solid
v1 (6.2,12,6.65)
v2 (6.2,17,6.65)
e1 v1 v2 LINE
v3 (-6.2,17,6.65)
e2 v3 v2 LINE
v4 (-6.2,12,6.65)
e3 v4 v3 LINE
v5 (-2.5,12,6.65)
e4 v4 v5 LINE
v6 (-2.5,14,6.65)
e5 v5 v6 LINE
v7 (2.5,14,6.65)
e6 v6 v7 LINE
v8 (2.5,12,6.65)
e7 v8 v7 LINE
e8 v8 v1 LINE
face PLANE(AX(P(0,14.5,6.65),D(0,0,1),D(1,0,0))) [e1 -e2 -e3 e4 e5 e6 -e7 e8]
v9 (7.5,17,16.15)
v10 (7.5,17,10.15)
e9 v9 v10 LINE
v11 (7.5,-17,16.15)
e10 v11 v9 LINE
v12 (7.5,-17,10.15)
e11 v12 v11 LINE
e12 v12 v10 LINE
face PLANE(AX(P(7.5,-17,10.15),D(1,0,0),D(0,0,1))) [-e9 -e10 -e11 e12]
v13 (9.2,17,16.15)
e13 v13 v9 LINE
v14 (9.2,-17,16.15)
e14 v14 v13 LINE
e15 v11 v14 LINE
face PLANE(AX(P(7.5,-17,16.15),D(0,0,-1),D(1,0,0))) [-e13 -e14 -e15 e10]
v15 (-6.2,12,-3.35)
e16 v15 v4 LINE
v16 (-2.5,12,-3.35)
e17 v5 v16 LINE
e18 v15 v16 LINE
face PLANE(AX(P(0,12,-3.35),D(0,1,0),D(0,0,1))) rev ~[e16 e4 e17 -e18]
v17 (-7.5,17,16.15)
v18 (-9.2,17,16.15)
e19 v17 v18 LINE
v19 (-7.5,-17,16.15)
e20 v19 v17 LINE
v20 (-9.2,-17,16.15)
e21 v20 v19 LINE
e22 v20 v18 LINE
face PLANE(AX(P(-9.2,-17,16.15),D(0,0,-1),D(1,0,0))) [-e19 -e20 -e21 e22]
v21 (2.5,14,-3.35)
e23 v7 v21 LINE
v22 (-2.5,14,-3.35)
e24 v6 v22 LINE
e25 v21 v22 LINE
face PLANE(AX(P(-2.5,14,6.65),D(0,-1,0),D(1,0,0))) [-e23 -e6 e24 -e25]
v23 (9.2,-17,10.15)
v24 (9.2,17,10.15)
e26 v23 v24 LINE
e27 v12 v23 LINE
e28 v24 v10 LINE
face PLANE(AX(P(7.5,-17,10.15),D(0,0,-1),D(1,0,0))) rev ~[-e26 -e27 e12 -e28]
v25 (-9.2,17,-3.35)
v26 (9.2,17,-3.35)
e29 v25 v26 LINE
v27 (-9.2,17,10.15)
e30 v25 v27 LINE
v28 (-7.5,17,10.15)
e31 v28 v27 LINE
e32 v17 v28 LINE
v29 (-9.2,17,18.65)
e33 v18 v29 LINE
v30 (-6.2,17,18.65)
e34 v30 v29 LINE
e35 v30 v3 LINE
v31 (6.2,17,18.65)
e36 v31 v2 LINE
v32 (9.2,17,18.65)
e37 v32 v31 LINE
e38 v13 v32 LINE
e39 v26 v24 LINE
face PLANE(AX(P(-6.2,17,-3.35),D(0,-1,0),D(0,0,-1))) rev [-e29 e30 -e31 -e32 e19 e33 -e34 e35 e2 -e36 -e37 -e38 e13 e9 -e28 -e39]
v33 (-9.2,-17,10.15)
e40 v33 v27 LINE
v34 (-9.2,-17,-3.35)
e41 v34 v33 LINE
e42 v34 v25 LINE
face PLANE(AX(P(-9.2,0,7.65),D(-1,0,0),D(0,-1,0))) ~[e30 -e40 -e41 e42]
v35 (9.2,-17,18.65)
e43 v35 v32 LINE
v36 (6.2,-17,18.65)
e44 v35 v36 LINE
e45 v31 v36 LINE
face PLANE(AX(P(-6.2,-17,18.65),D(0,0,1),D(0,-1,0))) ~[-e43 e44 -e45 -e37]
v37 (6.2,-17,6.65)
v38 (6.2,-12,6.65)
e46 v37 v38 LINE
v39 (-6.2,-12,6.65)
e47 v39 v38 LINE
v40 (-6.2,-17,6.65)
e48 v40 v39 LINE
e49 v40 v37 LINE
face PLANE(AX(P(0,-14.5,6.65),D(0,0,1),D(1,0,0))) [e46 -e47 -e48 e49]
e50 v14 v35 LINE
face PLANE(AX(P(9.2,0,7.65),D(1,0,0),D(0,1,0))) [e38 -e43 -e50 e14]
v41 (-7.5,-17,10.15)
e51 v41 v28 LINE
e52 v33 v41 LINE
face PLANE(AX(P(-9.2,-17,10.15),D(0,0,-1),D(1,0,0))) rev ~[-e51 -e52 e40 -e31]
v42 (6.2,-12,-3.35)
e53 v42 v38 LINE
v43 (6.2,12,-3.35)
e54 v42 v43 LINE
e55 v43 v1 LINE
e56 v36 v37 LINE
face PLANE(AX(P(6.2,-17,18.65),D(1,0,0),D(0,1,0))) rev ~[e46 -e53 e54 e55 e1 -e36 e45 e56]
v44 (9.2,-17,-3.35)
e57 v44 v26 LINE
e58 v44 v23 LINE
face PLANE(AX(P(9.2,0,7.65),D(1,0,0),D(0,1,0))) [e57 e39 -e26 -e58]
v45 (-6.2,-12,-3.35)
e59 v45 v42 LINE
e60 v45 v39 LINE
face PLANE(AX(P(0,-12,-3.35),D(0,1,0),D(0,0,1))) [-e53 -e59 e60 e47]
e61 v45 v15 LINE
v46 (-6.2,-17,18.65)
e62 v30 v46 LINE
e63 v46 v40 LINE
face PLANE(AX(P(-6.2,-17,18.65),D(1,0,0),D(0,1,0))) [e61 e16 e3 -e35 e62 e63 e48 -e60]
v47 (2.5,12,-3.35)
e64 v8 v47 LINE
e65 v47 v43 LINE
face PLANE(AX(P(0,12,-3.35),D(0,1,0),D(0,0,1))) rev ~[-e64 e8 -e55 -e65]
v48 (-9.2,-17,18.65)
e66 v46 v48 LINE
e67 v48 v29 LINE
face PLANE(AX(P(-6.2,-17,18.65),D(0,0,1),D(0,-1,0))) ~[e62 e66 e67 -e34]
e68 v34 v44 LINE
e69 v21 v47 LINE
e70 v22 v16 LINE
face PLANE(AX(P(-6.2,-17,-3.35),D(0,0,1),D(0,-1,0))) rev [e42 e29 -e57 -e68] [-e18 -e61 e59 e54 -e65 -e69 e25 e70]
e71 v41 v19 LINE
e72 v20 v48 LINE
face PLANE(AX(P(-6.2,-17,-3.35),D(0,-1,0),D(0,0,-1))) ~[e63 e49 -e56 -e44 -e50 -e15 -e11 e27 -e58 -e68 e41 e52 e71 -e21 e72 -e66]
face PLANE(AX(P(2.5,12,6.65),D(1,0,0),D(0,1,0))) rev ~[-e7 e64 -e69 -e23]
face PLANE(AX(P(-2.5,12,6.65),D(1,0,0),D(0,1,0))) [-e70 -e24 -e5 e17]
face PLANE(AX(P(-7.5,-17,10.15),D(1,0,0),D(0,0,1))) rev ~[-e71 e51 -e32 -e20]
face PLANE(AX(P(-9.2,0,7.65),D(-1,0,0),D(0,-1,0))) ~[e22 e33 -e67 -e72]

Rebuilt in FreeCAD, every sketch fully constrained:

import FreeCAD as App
import Part
import Sketcher
from FreeCAD import Vector


def add_polygon(sketch, points):
    """Adds a closed chain of lines whose ends are joined by coincident constraints."""
    first, n = sketch.GeometryCount, len(points)
    for a, b in zip(points, points[1:] + points[:1]):
        sketch.addGeometry(Part.LineSegment(App.Vector(*a, 0), App.Vector(*b, 0)), False)
    for i in range(n):
        sketch.addConstraint(Sketcher.Constraint("Coincident", first + i, 2, first + (i + 1) % n, 1))

doc = App.newDocument("Part")
body = doc.addObject("PartDesign::Body", "Body")

# Sketch on YZ plane
sketch1 = body.newObject("Sketcher::SketchObject", "Sketch")
sketch1.AttachmentSupport = (doc.getObject("YZ_Plane"), [""])
sketch1.MapMode = "FlatFace"
add_polygon(sketch1, [(-17, 19), (-17, -3), (-12, -3), (-12, 19)])  # lines 0-3
sketch1.addConstraint([
    Sketcher.Constraint("Vertical", 0),
    Sketcher.Constraint("Horizontal", 1),
    Sketcher.Constraint("Vertical", 2),
    Sketcher.Constraint("Horizontal", 3),
    Sketcher.Constraint("DistanceX", 1, 1, 1, 2, 5.0),
    Sketcher.Constraint("DistanceY", 0, 2, 0, 1, 22.0),
    Sketcher.Constraint("DistanceX", 0, 2, -1, 1, 17.0),
    Sketcher.Constraint("DistanceY", 0, 2, -1, 1, 3.35),
])
pad1 = body.newObject("PartDesign::Pad", "Pad")
pad1.Profile = sketch1
pad1.Length = 12.4
pad1.Midplane = True
body2 = doc.addObject("PartDesign::Body", "Body001")

# Sketch on YZ plane
sketch2 = body2.newObject("Sketcher::SketchObject", "Sketch001")
sketch2.AttachmentSupport = (doc.getObject("YZ_Plane001"), [""])
sketch2.MapMode = "FlatFace"
add_polygon(sketch2, [(12, 19), (12, -3), (17, -3), (17, 19)])  # lines 0-3
sketch2.addConstraint([
    Sketcher.Constraint("Vertical", 0),
    Sketcher.Constraint("Horizontal", 1),
    Sketcher.Constraint("Vertical", 2),
    Sketcher.Constraint("Horizontal", 3),
    Sketcher.Constraint("DistanceX", 1, 1, 1, 2, 5.0),
    Sketcher.Constraint("DistanceY", 0, 2, 0, 1, 22.0),
    Sketcher.Constraint("DistanceX", -1, 1, 0, 2, 12.0),
    Sketcher.Constraint("DistanceY", 0, 2, -1, 1, 3.35),
])
pad2 = body2.newObject("PartDesign::Pad", "Pad001")
pad2.Profile = sketch2
pad2.Length = 12.4
pad2.Midplane = True
body.AllowCompound = True
doc.recompute()

boolean = body.newObject("PartDesign::Boolean", "Boolean")
boolean.Type = "Fuse"
boolean.addObjects([body2])

# Sketch on YZ plane
sketch3 = body.newObject("Sketcher::SketchObject", "Sketch002")
sketch3.AttachmentSupport = (doc.getObject("YZ_Plane"), [""])
sketch3.MapMode = "FlatFace"
sketch3.AttachmentOffset = App.Placement(Vector(0, 0, 6.2), App.Rotation())
add_polygon(sketch3, [(-17, 19), (-17, -3), (17, -3), (17, 19)])  # lines 0-3
sketch3.addConstraint([
    Sketcher.Constraint("Vertical", 0),
    Sketcher.Constraint("Horizontal", 1),
    Sketcher.Constraint("Vertical", 2),
    Sketcher.Constraint("Horizontal", 3),
    Sketcher.Constraint("DistanceX", 1, 1, 1, 2, 34.0),
    Sketcher.Constraint("DistanceY", 0, 2, 0, 1, 22.0),
    Sketcher.Constraint("DistanceX", 0, 2, -1, 1, 17.0),
    Sketcher.Constraint("DistanceY", 0, 2, -1, 1, 3.35),
])
pad3 = body.newObject("PartDesign::Pad", "Pad002")
pad3.Profile = sketch3
pad3.Length = 3
body3 = doc.addObject("PartDesign::Body", "Body002")
doc.recompute()

body3.BaseFeature = body
doc.recompute()

mirroring = doc.addObject("Part::Mirroring", "Mirroring")
mirroring.Source = body
mirroring.Base = Vector(0, 0, 0)
mirroring.Normal = Vector(1, 0, 0)
body4 = doc.addObject("PartDesign::Body", "Body003")
body4.BaseFeature = mirroring
boolean2 = body3.newObject("PartDesign::Boolean", "Boolean001")
boolean2.Type = "Fuse"
boolean2.addObjects([body4])
doc.recompute()

# Sketch on XY plane
sketch4 = body3.newObject("Sketcher::SketchObject", "Sketch003")
sketch4.AttachmentSupport = (doc.getObject("XY_Plane002"), [""])
sketch4.MapMode = "FlatFace"
sketch4.AttachmentOffset = App.Placement(Vector(0, 0, 18.65), App.Rotation())
add_polygon(sketch4, [(-6, -12), (-6, -17), (6, -17), (6, -12)])  # lines 0-3
add_polygon(sketch4, [(-6, 17), (-6, 12), (6, 12), (6, 17)])  # lines 4-7
sketch4.addConstraint([
    Sketcher.Constraint("Vertical", 0),
    Sketcher.Constraint("Horizontal", 1),
    Sketcher.Constraint("Vertical", 2),
    Sketcher.Constraint("Horizontal", 3),
    Sketcher.Constraint("Vertical", 4),
    Sketcher.Constraint("Horizontal", 5),
    Sketcher.Constraint("Vertical", 6),
    Sketcher.Constraint("Horizontal", 7),
    Sketcher.Constraint("Symmetric", 2, 2, 4, 2, -1, 1),
    Sketcher.Constraint("Symmetric", 0, 2, 6, 2, -1, 1),
    Sketcher.Constraint("Vertical", 3, 2, 4, 2),
    Sketcher.Constraint("DistanceY", 0, 2, 0, 1, 5.0),
    Sketcher.Constraint("DistanceX", 1, 1, 1, 2, 12.4),
    Sketcher.Constraint("DistanceY", 0, 2, -1, 1, 17.0),
])
pocket1 = body3.newObject("PartDesign::Pocket", "Pocket")
pocket1.Profile = sketch4
pocket1.Length = 12

# Sketch on XY plane
sketch5 = body3.newObject("Sketcher::SketchObject", "Sketch004")
sketch5.AttachmentSupport = (doc.getObject("XY_Plane002"), [""])
sketch5.MapMode = "FlatFace"
sketch5.AttachmentOffset = App.Placement(Vector(0, 0, 6.65), App.Rotation())
add_polygon(sketch5, [(-2.5, 14), (-2.5, 12), (2.5, 12), (2.5, 14)])  # lines 0-3
sketch5.addConstraint([
    Sketcher.Constraint("Vertical", 0),
    Sketcher.Constraint("Horizontal", 1),
    Sketcher.Constraint("Vertical", 2),
    Sketcher.Constraint("Horizontal", 3),
    Sketcher.Constraint("DistanceX", 1, 1, 1, 2, 5.0),
    Sketcher.Constraint("DistanceY", 0, 2, 0, 1, 2.0),
    Sketcher.Constraint("DistanceY", -1, 1, 0, 2, 12.0),
    Sketcher.Constraint("DistanceX", 0, 2, -1, 1, 2.5),
])
pocket2 = body3.newObject("PartDesign::Pocket", "Pocket001")
pocket2.Profile = sketch5
pocket2.Length = 25

# Sketch on XZ plane
sketch6 = body3.newObject("Sketcher::SketchObject", "Sketch005")
sketch6.AttachmentSupport = (doc.getObject("XZ_Plane002"), [""])
sketch6.MapMode = "FlatFace"
sketch6.AttachmentOffset = App.Placement(Vector(0, 0, 17), App.Rotation())
add_polygon(sketch6, [(-9.2, 16.1), (-9.2, 10.2), (-7.5, 10.2), (-7.5, 16.1)])  # lines 0-3
add_polygon(sketch6, [(7.5, 16.1), (7.5, 10.2), (9.2, 10.2), (9.2, 16.1)])  # lines 4-7
sketch6.addConstraint([
    Sketcher.Constraint("Vertical", 0),
    Sketcher.Constraint("Horizontal", 1),
    Sketcher.Constraint("Vertical", 2),
    Sketcher.Constraint("Horizontal", 3),
    Sketcher.Constraint("Vertical", 4),
    Sketcher.Constraint("Horizontal", 5),
    Sketcher.Constraint("Vertical", 6),
    Sketcher.Constraint("Horizontal", 7),
    Sketcher.Constraint("Symmetric", 1, 2, 4, 2, -2),
    Sketcher.Constraint("Symmetric", 3, 2, 6, 2, -2),
    Sketcher.Constraint("DistanceY", 0, 2, 0, 1, 6.0),
    Sketcher.Constraint("DistanceX", 1, 1, 1, 2, 1.7),
    Sketcher.Constraint("DistanceX", 1, 2, 4, 2, 15.0),
    Sketcher.Constraint("DistanceY", -1, 1, 0, 2, 10.15),
])
pocket3 = body3.newObject("PartDesign::Pocket", "Pocket002")
pocket3.Profile = sketch6
pocket3.Type = "ThroughAll"
mirroring.Visibility = False

doc.recompute()
